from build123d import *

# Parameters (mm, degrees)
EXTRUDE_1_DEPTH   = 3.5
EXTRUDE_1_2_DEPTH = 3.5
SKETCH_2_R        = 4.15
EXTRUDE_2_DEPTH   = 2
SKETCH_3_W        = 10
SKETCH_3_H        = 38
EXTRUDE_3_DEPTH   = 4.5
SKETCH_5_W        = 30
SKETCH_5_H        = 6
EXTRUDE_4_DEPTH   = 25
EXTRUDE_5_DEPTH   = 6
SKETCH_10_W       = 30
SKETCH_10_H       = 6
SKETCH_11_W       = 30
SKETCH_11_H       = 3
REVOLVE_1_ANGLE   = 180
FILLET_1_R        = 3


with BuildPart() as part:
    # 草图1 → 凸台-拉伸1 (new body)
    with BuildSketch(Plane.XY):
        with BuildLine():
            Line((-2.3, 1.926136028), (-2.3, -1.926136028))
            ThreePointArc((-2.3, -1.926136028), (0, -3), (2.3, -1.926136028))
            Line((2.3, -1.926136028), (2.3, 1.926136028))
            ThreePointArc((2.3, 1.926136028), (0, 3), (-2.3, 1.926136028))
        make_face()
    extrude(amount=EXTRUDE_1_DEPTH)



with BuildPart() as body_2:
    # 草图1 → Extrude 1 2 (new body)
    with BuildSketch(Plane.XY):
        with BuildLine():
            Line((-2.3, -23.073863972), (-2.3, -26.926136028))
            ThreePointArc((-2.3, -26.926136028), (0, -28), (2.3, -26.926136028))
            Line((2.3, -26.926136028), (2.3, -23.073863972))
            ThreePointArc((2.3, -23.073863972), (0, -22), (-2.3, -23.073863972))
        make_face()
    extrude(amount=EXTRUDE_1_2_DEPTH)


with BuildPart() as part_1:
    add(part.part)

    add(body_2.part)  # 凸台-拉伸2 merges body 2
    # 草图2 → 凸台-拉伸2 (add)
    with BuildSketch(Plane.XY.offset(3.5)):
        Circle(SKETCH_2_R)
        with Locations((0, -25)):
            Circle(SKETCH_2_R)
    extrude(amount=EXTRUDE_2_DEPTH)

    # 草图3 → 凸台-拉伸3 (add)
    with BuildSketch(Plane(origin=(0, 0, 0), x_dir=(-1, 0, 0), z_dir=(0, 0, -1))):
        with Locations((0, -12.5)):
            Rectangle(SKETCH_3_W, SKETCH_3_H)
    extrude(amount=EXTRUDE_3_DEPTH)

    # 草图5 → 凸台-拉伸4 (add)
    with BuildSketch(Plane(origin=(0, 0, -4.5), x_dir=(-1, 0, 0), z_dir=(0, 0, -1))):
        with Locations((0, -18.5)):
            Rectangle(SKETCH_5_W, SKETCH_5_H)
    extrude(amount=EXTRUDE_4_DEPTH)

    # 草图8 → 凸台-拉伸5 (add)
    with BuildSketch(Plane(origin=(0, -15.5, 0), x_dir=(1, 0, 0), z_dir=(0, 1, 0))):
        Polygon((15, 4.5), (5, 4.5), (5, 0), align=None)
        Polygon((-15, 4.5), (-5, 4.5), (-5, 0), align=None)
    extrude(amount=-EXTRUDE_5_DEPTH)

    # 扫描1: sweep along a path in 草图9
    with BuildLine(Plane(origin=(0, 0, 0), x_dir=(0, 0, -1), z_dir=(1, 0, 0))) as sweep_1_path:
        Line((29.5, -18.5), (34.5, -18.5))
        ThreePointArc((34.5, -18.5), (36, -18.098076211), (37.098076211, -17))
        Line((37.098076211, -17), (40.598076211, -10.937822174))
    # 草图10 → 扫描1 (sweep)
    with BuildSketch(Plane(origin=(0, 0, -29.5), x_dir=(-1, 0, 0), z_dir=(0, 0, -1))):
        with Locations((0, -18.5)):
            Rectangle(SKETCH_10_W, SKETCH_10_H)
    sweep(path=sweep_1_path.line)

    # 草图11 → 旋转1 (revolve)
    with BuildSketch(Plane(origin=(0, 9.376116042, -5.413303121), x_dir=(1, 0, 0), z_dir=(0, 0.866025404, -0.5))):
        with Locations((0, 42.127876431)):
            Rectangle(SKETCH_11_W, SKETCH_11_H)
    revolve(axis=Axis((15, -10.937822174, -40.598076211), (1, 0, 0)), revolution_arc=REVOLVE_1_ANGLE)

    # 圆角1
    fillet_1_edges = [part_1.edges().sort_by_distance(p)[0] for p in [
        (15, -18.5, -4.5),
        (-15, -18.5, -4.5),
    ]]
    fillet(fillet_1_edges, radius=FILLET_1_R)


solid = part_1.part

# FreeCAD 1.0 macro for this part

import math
import FreeCAD as App
import Part
import Sketcher
from FreeCAD import Vector
Q = App.Units.Quantity


def edges_at(feature, points):
    """Names of the edges that pass closest to the given points."""
    edges = feature.Shape.Edges
    near = lambda p: min(range(len(edges)), key=lambda i: edges[i].distToShape(Part.Vertex(*p))[0])
    return sorted({f"Edge{near(p) + 1}" for p in points})

doc = App.newDocument("Part")
body = doc.addObject("PartDesign::Body", "Body")

sketch1 = body.newObject("Sketcher::SketchObject", "Sketch")
sketch1.AttachmentSupport = (doc.getObject("XY_Plane"), [""])
sketch1.MapMode = "FlatFace"
sketch1.addGeometry([
    Part.LineSegment(Vector(-2.3, 1.9, 0), Vector(-2.3, -1.9, 0)),
    Part.ArcOfCircle(Part.Circle(Vector(0, 0, 0), Vector(0, 0, 1), 3), math.radians(-140), math.radians(-40)),
    Part.LineSegment(Vector(2.3, -1.9, 0), Vector(2.3, 1.9, 0)),
    Part.ArcOfCircle(Part.Circle(Vector(0, 0, 0), Vector(0, 0, 1), 3), math.radians(40), math.radians(140)),
], False)
sketch1.addConstraint([
    Sketcher.Constraint("Coincident", 0, 2, 1, 1),
    Sketcher.Constraint("Coincident", 1, 2, 2, 1),
    Sketcher.Constraint("Coincident", 2, 2, 3, 1),
    Sketcher.Constraint("Coincident", 3, 2, 0, 1),
    Sketcher.Constraint("Vertical", 0),
    Sketcher.Constraint("Vertical", 2),
    Sketcher.Constraint("Coincident", 1, 3, -1, 1),
    Sketcher.Constraint("Coincident", 3, 3, -1, 1),
    Sketcher.Constraint("Equal", 1, 3),
    Sketcher.Constraint("Horizontal", 0, 2, 1, 2),
    Sketcher.Constraint("Radius", 1, Q("3 mm")),
    Sketcher.Constraint("DistanceX", 0, 2, -1, 1, Q("2.3 mm")),
])
pad1 = body.newObject("PartDesign::Pad", "Pad")
pad1.Profile = sketch1
pad1.Length = 3.5
body2 = doc.addObject("PartDesign::Body", "Body001")

sketch2 = body2.newObject("Sketcher::SketchObject", "Sketch001")
sketch2.AttachmentSupport = (doc.getObject("XY_Plane001"), [""])
sketch2.MapMode = "FlatFace"
sketch2.addGeometry([
    Part.LineSegment(Vector(-2.3, -23.1, 0), Vector(-2.3, -26.9, 0)),
    Part.ArcOfCircle(Part.Circle(Vector(0, -25, 0), Vector(0, 0, 1), 3), math.radians(-140), math.radians(-40)),
    Part.LineSegment(Vector(2.3, -26.9, 0), Vector(2.3, -23.1, 0)),
    Part.ArcOfCircle(Part.Circle(Vector(0, -25, 0), Vector(0, 0, 1), 3), math.radians(40), math.radians(140)),
], False)
sketch2.addConstraint([
    Sketcher.Constraint("Coincident", 0, 2, 1, 1),
    Sketcher.Constraint("Coincident", 1, 2, 2, 1),
    Sketcher.Constraint("Coincident", 2, 2, 3, 1),
    Sketcher.Constraint("Coincident", 3, 2, 0, 1),
    Sketcher.Constraint("Vertical", 0),
    Sketcher.Constraint("Vertical", 2),
    Sketcher.Constraint("Coincident", 3, 3, 1, 3),
    Sketcher.Constraint("Equal", 1, 3),
    Sketcher.Constraint("Symmetric", 0, 2, 1, 2, -2),
    Sketcher.Constraint("Radius", 1, Q("3 mm")),
    Sketcher.Constraint("DistanceY", 1, 3, -1, 1, Q("25 mm")),
    Sketcher.Constraint("DistanceX", 0, 2, -1, 1, Q("2.3 mm")),
])
pad2 = body2.newObject("PartDesign::Pad", "Pad001")
pad2.Profile = sketch2
pad2.Length = 3.5
body.AllowCompound = True
doc.recompute()

boolean = body.newObject("PartDesign::Boolean", "Boolean")
boolean.Type = "Fuse"
boolean.addObjects([body2])

sketch3 = body.newObject("Sketcher::SketchObject", "Sketch002")
sketch3.AttachmentSupport = (doc.getObject("XY_Plane"), [""])
sketch3.MapMode = "FlatFace"
sketch3.AttachmentOffset = App.Placement(Vector(0, 0, 3.5), App.Rotation())
sketch3.addGeometry([
    Part.Circle(Vector(0, 0, 0), Vector(0, 0, 1), 4.2),
    Part.Circle(Vector(0, -25, 0), Vector(0, 0, 1), 4.2),
], False)
sketch3.addConstraint([
    Sketcher.Constraint("Coincident", 0, 3, -1, 1),
    Sketcher.Constraint("Equal", 0, 1),
    Sketcher.Constraint("PointOnObject", 1, 3, -2),
    Sketcher.Constraint("Diameter", 0, Q("8.3 mm")),
    Sketcher.Constraint("DistanceY", 1, 3, -1, 1, Q("25 mm")),
])
pad3 = body.newObject("PartDesign::Pad", "Pad002")
pad3.Profile = sketch3
pad3.Length = 2

sketch4 = body.newObject("Sketcher::SketchObject", "Sketch003")
sketch4.AttachmentSupport = (doc.getObject("XY_Plane"), [""])
sketch4.MapMode = "FlatFace"
sketch4.addGeometry([
    Part.LineSegment(Vector(5, 6, 0), Vector(5, -32, 0)),
    Part.LineSegment(Vector(5, -32, 0), Vector(-5, -32, 0)),
    Part.LineSegment(Vector(-5, -32, 0), Vector(-5, 6, 0)),
    Part.LineSegment(Vector(-5, 6, 0), Vector(5, 6, 0)),
], False)
sketch4.addConstraint([
    Sketcher.Constraint("Coincident", 0, 2, 1, 1),
    Sketcher.Constraint("Coincident", 1, 2, 2, 1),
    Sketcher.Constraint("Coincident", 2, 2, 3, 1),
    Sketcher.Constraint("Coincident", 3, 2, 0, 1),
    Sketcher.Constraint("Vertical", 0),
    Sketcher.Constraint("Horizontal", 1),
    Sketcher.Constraint("Vertical", 2),
    Sketcher.Constraint("Horizontal", 3),
    Sketcher.Constraint("DistanceX", 1, 2, 1, 1, Q("10 mm")),
    Sketcher.Constraint("DistanceY", 0, 2, 0, 1, Q("38 mm")),
    Sketcher.Constraint("DistanceX", -1, 1, 0, 2, Q("5 mm")),
    Sketcher.Constraint("DistanceY", 0, 2, -1, 1, Q("31.5 mm")),
])
pad4 = body.newObject("PartDesign::Pad", "Pad003")
pad4.Profile = sketch4
pad4.Length = 4.5
pad4.Reversed = True

sketch5 = body.newObject("Sketcher::SketchObject", "Sketch004")
sketch5.AttachmentSupport = (doc.getObject("XY_Plane"), [""])
sketch5.MapMode = "FlatFace"
sketch5.AttachmentOffset = App.Placement(Vector(0, 0, -4.5), App.Rotation())
sketch5.addGeometry([
    Part.LineSegment(Vector(15, -16, 0), Vector(15, -22, 0)),
    Part.LineSegment(Vector(15, -22, 0), Vector(-15, -22, 0)),
    Part.LineSegment(Vector(-15, -22, 0), Vector(-15, -16, 0)),
    Part.LineSegment(Vector(-15, -16, 0), Vector(15, -16, 0)),
], False)
sketch5.addConstraint([
    Sketcher.Constraint("Coincident", 0, 2, 1, 1),
    Sketcher.Constraint("Coincident", 1, 2, 2, 1),
    Sketcher.Constraint("Coincident", 2, 2, 3, 1),
    Sketcher.Constraint("Coincident", 3, 2, 0, 1),
    Sketcher.Constraint("Vertical", 0),
    Sketcher.Constraint("Horizontal", 1),
    Sketcher.Constraint("Vertical", 2),
    Sketcher.Constraint("Horizontal", 3),
    Sketcher.Constraint("DistanceX", 1, 2, 1, 1, Q("30 mm")),
    Sketcher.Constraint("DistanceY", 0, 2, 0, 1, Q("6 mm")),
    Sketcher.Constraint("DistanceX", -1, 1, 0, 2, Q("15 mm")),
    Sketcher.Constraint("DistanceY", 0, 2, -1, 1, Q("21.5 mm")),
])
pad5 = body.newObject("PartDesign::Pad", "Pad004")
pad5.Profile = sketch5
pad5.Length = 25
pad5.Reversed = True

sketch6 = body.newObject("Sketcher::SketchObject", "Sketch005")
sketch6.AttachmentSupport = (doc.getObject("XZ_Plane"), [""])
sketch6.MapMode = "FlatFace"
sketch6.AttachmentOffset = App.Placement(Vector(0, 0, 15.5), App.Rotation())
sketch6.addGeometry([
    Part.LineSegment(Vector(15, -4.5, 0), Vector(5, -4.5, 0)),
    Part.LineSegment(Vector(5, -4.5, 0), Vector(5, 0, 0)),
    Part.LineSegment(Vector(5, 0, 0), Vector(15, -4.5, 0)),
    Part.LineSegment(Vector(-5, -4.5, 0), Vector(-15, -4.5, 0)),
    Part.LineSegment(Vector(-15, -4.5, 0), Vector(-5, 0, 0)),
    Part.LineSegment(Vector(-5, 0, 0), Vector(-5, -4.5, 0)),
], False)
sketch6.addConstraint([
    Sketcher.Constraint("Coincident", 0, 2, 1, 1),
    Sketcher.Constraint("Coincident", 1, 2, 2, 1),
    Sketcher.Constraint("Coincident", 2, 2, 0, 1),
    Sketcher.Constraint("Coincident", 3, 2, 4, 1),
    Sketcher.Constraint("Coincident", 4, 2, 5, 1),
    Sketcher.Constraint("Coincident", 5, 2, 3, 1),
    Sketcher.Constraint("Horizontal", 0),
    Sketcher.Constraint("Vertical", 1),
    Sketcher.Constraint("Horizontal", 3),
    Sketcher.Constraint("Vertical", 5),
    Sketcher.Constraint("Symmetric", 1, 2, 4, 2, -1, 1),
    Sketcher.Constraint("Symmetric", 2, 2, 3, 2, -2),
    Sketcher.Constraint("PointOnObject", 1, 2, -1),
    Sketcher.Constraint("DistanceX", 0, 2, 0, 1, Q("10 mm")),
    Sketcher.Constraint("DistanceY", 1, 1, 1, 2, Q("4.5 mm")),
    Sketcher.Constraint("DistanceX", -1, 1, 0, 2, Q("5 mm")),
])
pad6 = body.newObject("PartDesign::Pad", "Pad005")
pad6.Profile = sketch6
pad6.Length = 6

sketch7 = body.newObject("Sketcher::SketchObject", "Sketch006")
sketch7.AttachmentSupport = (doc.getObject("XY_Plane"), [""])
sketch7.MapMode = "FlatFace"
sketch7.AttachmentOffset = App.Placement(Vector(0, 0, -29.5), App.Rotation())
sketch7.addGeometry([
    Part.LineSegment(Vector(15, -16, 0), Vector(15, -22, 0)),
    Part.LineSegment(Vector(15, -22, 0), Vector(-15, -22, 0)),
    Part.LineSegment(Vector(-15, -22, 0), Vector(-15, -16, 0)),
    Part.LineSegment(Vector(-15, -16, 0), Vector(15, -16, 0)),
], False)
sketch7.addConstraint([
    Sketcher.Constraint("Coincident", 0, 2, 1, 1),
    Sketcher.Constraint("Coincident", 1, 2, 2, 1),
    Sketcher.Constraint("Coincident", 2, 2, 3, 1),
    Sketcher.Constraint("Coincident", 3, 2, 0, 1),
    Sketcher.Constraint("Vertical", 0),
    Sketcher.Constraint("Horizontal", 1),
    Sketcher.Constraint("Vertical", 2),
    Sketcher.Constraint("Horizontal", 3),
    Sketcher.Constraint("DistanceX", 1, 2, 1, 1, Q("30 mm")),
    Sketcher.Constraint("DistanceY", 0, 2, 0, 1, Q("6 mm")),
    Sketcher.Constraint("DistanceX", -1, 1, 0, 2, Q("15 mm")),
    Sketcher.Constraint("DistanceY", 0, 2, -1, 1, Q("21.5 mm")),
])

sketch8 = body.newObject("Sketcher::SketchObject", "Sketch007")
sketch8.AttachmentSupport = (doc.getObject("YZ_Plane"), [""])
sketch8.MapMode = "FlatFace"
sketch8.addGeometry([
    Part.LineSegment(Vector(-18.5, -29.5, 0), Vector(-18.5, -34.5, 0)),
    Part.ArcOfCircle(Part.Circle(Vector(-15.5, -34.5, 0), Vector(0, 0, 1), 3), math.radians(-180), math.radians(-120)),
    Part.LineSegment(Vector(-17, -37.1, 0), Vector(-10.9, -40.6, 0)),
], False)
sketch8.addConstraint([
    Sketcher.Constraint("Tangent", 0, 2, 1, 1),
    Sketcher.Constraint("Tangent", 1, 2, 2, 1),
    Sketcher.Constraint("Vertical", 0),
    Sketcher.Constraint("Radius", 1, Q("3 mm")),
    Sketcher.Constraint("DistanceY", 0, 2, 0, 1, Q("5 mm")),
    Sketcher.Constraint("Angle", 2, Q("-30 deg")),
    Sketcher.Constraint("Distance", 2, Q("7 mm")),
    Sketcher.Constraint("DistanceX", 1, 2, -1, 1, Q("17 mm")),
    Sketcher.Constraint("DistanceY", 1, 3, -1, 1, Q("34.5 mm")),
])
doc.recompute()

additivepipe = body.newObject("PartDesign::AdditivePipe", "AdditivePipe")
additivepipe.Profile = sketch7
additivepipe.Spine = (sketch8, ["Edge1", "Edge2", "Edge3"])

sketch9 = body.newObject("Sketcher::SketchObject", "Sketch008")
sketch9.Placement = App.Placement(Vector(0, 9.376116, -5.413303), App.Rotation(Vector(1, 0, 0), Vector(0, -0.5, -0.866025404), Vector(0, 0.866025404, -0.5), "ZXY"))
sketch9.addGeometry([
    Part.LineSegment(Vector(-15, 43.6, 0), Vector(-15, 40.6, 0)),
    Part.LineSegment(Vector(-15, 40.6, 0), Vector(15, 40.6, 0)),
    Part.LineSegment(Vector(15, 40.6, 0), Vector(15, 43.6, 0)),
    Part.LineSegment(Vector(15, 43.6, 0), Vector(-15, 43.6, 0)),
], False)
sketch9.addGeometry(Part.LineSegment(Vector(-15, 40.6, 0), Vector(15, 40.6, 0)), True)
sketch9.addConstraint([
    Sketcher.Constraint("Coincident", 0, 2, 1, 1),
    Sketcher.Constraint("Coincident", 1, 2, 2, 1),
    Sketcher.Constraint("Coincident", 2, 2, 3, 1),
    Sketcher.Constraint("Coincident", 3, 2, 0, 1),
    Sketcher.Constraint("Vertical", 0),
    Sketcher.Constraint("Horizontal", 1),
    Sketcher.Constraint("Vertical", 2),
    Sketcher.Constraint("Horizontal", 3),
    Sketcher.Constraint("Horizontal", 4),
    Sketcher.Constraint("Coincident", 4, 1, 0, 2),
    Sketcher.Constraint("Vertical", 2, 2, 4, 2),
    Sketcher.Constraint("DistanceX", 1, 1, 1, 2, Q("30 mm")),
    Sketcher.Constraint("DistanceY", 0, 2, 0, 1, Q("3 mm")),
    Sketcher.Constraint("DistanceX", 0, 2, -1, 1, Q("15 mm")),
    Sketcher.Constraint("DistanceY", -1, 1, 0, 2, Q("40.627876 mm")),
])
revolution = body.newObject("PartDesign::Revolution", "Revolution")
revolution.Profile = sketch9
revolution.ReferenceAxis = (sketch9, ["Axis0"])
revolution.Angle = 180
doc.recompute()

fillet = body.newObject("PartDesign::Fillet", "Fillet")
fillet.Base = (revolution, edges_at(revolution, [(15, -18.5, -4.5), (-15, -18.5, -4.5)]))
fillet.Radius = 3

doc.recompute()
